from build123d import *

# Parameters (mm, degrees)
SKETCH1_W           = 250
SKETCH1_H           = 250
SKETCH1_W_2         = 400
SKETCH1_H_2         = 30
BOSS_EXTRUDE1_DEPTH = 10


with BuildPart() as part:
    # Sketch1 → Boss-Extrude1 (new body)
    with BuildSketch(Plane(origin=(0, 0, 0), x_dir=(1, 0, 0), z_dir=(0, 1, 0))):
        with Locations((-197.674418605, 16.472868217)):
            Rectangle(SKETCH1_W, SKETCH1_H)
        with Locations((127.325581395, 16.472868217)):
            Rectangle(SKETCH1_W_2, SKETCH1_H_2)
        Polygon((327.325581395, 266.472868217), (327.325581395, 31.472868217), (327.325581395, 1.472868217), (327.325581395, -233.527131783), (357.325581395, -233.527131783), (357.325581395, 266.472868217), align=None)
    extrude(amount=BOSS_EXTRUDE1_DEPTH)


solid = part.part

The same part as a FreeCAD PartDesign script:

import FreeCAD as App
import Part
import Sketcher
Q = App.Units.Quantity

doc = App.newDocument("Part")
body = doc.addObject("PartDesign::Body", "Body")

sketch1 = doc.addObject("Sketcher::SketchObject", "Sketch")
body.addObject(sketch1)
sketch1.AttachmentSupport = (doc.XZ_Plane, [""])
sketch1.MapMode = "FlatFace"
sketch1.addGeometry([
    Part.LineSegment(App.Vector(-323, -141, 0), App.Vector(-323, 109, 0)),
    Part.LineSegment(App.Vector(-323, 109, 0), App.Vector(-73, 109, 0)),
    Part.LineSegment(App.Vector(-73, 109, 0), App.Vector(-73, -1, 0)),
    Part.LineSegment(App.Vector(-73, -1, 0), App.Vector(327, -1, 0)),
    Part.LineSegment(App.Vector(327, -1, 0), App.Vector(327, 234, 0)),
    Part.LineSegment(App.Vector(327, 234, 0), App.Vector(357, 234, 0)),
    Part.LineSegment(App.Vector(357, 234, 0), App.Vector(357, -266, 0)),
    Part.LineSegment(App.Vector(357, -266, 0), App.Vector(327, -266, 0)),
    Part.LineSegment(App.Vector(327, -266, 0), App.Vector(327, -31, 0)),
    Part.LineSegment(App.Vector(327, -31, 0), App.Vector(-73, -31, 0)),
    Part.LineSegment(App.Vector(-73, -31, 0), App.Vector(-73, -141, 0)),
    Part.LineSegment(App.Vector(-73, -141, 0), App.Vector(-323, -141, 0)),
], False)
sketch1.addConstraint([
    Sketcher.Constraint("Coincident", 0, 2, 1, 1),
    Sketcher.Constraint("Coincident", 1, 2, 2, 1),
    Sketcher.Constraint("Coincident", 2, 2, 3, 1),
    Sketcher.Constraint("Coincident", 3, 2, 4, 1),
    Sketcher.Constraint("Coincident", 4, 2, 5, 1),
    Sketcher.Constraint("Coincident", 5, 2, 6, 1),
    Sketcher.Constraint("Coincident", 6, 2, 7, 1),
    Sketcher.Constraint("Coincident", 7, 2, 8, 1),
    Sketcher.Constraint("Coincident", 8, 2, 9, 1),
    Sketcher.Constraint("Coincident", 9, 2, 10, 1),
    Sketcher.Constraint("Coincident", 10, 2, 11, 1),
    Sketcher.Constraint("Coincident", 11, 2, 0, 1),
    Sketcher.Constraint("Vertical", 0),
    Sketcher.Constraint("Horizontal", 1),
    Sketcher.Constraint("Vertical", 2),
    Sketcher.Constraint("Horizontal", 3),
    Sketcher.Constraint("Vertical", 4),
    Sketcher.Constraint("Horizontal", 5),
    Sketcher.Constraint("Vertical", 6),
    Sketcher.Constraint("Horizontal", 7),
    Sketcher.Constraint("Vertical", 8),
    Sketcher.Constraint("Horizontal", 9),
    Sketcher.Constraint("Vertical", 10),
    Sketcher.Constraint("Horizontal", 11),
    Sketcher.Constraint("Vertical", 4, 2, 7, 2),
    Sketcher.Constraint("Vertical", 2, 2, 9, 2),
    Sketcher.Constraint("Equal", 11, 0),
    Sketcher.Constraint("Equal", 4, 8),
    Sketcher.Constraint("Equal", 2, 10),
    Sketcher.Constraint("DistanceX", 1, 1, 1, 2, Q("250 mm")),
    Sketcher.Constraint("DistanceX", 3, 1, 3, 2, Q("400 mm")),
    Sketcher.Constraint("DistanceX", 5, 1, 5, 2, Q("30 mm")),
    Sketcher.Constraint("DistanceY", 2, 2, 2, 1, Q("110 mm")),
    Sketcher.Constraint("DistanceY", 4, 1, 4, 2, Q("235 mm")),
    Sketcher.Constraint("DistanceX", 0, 2, -1, 1, Q("322.674419 mm")),
    Sketcher.Constraint("DistanceY", -1, 1, 0, 2, Q("108.527132 mm")),
])
pad1 = doc.addObject("PartDesign::Pad", "Pad")
body.addObject(pad1)
pad1.Profile = sketch1
pad1.Length = 10
pad1.Reversed = True

doc.recompute()
